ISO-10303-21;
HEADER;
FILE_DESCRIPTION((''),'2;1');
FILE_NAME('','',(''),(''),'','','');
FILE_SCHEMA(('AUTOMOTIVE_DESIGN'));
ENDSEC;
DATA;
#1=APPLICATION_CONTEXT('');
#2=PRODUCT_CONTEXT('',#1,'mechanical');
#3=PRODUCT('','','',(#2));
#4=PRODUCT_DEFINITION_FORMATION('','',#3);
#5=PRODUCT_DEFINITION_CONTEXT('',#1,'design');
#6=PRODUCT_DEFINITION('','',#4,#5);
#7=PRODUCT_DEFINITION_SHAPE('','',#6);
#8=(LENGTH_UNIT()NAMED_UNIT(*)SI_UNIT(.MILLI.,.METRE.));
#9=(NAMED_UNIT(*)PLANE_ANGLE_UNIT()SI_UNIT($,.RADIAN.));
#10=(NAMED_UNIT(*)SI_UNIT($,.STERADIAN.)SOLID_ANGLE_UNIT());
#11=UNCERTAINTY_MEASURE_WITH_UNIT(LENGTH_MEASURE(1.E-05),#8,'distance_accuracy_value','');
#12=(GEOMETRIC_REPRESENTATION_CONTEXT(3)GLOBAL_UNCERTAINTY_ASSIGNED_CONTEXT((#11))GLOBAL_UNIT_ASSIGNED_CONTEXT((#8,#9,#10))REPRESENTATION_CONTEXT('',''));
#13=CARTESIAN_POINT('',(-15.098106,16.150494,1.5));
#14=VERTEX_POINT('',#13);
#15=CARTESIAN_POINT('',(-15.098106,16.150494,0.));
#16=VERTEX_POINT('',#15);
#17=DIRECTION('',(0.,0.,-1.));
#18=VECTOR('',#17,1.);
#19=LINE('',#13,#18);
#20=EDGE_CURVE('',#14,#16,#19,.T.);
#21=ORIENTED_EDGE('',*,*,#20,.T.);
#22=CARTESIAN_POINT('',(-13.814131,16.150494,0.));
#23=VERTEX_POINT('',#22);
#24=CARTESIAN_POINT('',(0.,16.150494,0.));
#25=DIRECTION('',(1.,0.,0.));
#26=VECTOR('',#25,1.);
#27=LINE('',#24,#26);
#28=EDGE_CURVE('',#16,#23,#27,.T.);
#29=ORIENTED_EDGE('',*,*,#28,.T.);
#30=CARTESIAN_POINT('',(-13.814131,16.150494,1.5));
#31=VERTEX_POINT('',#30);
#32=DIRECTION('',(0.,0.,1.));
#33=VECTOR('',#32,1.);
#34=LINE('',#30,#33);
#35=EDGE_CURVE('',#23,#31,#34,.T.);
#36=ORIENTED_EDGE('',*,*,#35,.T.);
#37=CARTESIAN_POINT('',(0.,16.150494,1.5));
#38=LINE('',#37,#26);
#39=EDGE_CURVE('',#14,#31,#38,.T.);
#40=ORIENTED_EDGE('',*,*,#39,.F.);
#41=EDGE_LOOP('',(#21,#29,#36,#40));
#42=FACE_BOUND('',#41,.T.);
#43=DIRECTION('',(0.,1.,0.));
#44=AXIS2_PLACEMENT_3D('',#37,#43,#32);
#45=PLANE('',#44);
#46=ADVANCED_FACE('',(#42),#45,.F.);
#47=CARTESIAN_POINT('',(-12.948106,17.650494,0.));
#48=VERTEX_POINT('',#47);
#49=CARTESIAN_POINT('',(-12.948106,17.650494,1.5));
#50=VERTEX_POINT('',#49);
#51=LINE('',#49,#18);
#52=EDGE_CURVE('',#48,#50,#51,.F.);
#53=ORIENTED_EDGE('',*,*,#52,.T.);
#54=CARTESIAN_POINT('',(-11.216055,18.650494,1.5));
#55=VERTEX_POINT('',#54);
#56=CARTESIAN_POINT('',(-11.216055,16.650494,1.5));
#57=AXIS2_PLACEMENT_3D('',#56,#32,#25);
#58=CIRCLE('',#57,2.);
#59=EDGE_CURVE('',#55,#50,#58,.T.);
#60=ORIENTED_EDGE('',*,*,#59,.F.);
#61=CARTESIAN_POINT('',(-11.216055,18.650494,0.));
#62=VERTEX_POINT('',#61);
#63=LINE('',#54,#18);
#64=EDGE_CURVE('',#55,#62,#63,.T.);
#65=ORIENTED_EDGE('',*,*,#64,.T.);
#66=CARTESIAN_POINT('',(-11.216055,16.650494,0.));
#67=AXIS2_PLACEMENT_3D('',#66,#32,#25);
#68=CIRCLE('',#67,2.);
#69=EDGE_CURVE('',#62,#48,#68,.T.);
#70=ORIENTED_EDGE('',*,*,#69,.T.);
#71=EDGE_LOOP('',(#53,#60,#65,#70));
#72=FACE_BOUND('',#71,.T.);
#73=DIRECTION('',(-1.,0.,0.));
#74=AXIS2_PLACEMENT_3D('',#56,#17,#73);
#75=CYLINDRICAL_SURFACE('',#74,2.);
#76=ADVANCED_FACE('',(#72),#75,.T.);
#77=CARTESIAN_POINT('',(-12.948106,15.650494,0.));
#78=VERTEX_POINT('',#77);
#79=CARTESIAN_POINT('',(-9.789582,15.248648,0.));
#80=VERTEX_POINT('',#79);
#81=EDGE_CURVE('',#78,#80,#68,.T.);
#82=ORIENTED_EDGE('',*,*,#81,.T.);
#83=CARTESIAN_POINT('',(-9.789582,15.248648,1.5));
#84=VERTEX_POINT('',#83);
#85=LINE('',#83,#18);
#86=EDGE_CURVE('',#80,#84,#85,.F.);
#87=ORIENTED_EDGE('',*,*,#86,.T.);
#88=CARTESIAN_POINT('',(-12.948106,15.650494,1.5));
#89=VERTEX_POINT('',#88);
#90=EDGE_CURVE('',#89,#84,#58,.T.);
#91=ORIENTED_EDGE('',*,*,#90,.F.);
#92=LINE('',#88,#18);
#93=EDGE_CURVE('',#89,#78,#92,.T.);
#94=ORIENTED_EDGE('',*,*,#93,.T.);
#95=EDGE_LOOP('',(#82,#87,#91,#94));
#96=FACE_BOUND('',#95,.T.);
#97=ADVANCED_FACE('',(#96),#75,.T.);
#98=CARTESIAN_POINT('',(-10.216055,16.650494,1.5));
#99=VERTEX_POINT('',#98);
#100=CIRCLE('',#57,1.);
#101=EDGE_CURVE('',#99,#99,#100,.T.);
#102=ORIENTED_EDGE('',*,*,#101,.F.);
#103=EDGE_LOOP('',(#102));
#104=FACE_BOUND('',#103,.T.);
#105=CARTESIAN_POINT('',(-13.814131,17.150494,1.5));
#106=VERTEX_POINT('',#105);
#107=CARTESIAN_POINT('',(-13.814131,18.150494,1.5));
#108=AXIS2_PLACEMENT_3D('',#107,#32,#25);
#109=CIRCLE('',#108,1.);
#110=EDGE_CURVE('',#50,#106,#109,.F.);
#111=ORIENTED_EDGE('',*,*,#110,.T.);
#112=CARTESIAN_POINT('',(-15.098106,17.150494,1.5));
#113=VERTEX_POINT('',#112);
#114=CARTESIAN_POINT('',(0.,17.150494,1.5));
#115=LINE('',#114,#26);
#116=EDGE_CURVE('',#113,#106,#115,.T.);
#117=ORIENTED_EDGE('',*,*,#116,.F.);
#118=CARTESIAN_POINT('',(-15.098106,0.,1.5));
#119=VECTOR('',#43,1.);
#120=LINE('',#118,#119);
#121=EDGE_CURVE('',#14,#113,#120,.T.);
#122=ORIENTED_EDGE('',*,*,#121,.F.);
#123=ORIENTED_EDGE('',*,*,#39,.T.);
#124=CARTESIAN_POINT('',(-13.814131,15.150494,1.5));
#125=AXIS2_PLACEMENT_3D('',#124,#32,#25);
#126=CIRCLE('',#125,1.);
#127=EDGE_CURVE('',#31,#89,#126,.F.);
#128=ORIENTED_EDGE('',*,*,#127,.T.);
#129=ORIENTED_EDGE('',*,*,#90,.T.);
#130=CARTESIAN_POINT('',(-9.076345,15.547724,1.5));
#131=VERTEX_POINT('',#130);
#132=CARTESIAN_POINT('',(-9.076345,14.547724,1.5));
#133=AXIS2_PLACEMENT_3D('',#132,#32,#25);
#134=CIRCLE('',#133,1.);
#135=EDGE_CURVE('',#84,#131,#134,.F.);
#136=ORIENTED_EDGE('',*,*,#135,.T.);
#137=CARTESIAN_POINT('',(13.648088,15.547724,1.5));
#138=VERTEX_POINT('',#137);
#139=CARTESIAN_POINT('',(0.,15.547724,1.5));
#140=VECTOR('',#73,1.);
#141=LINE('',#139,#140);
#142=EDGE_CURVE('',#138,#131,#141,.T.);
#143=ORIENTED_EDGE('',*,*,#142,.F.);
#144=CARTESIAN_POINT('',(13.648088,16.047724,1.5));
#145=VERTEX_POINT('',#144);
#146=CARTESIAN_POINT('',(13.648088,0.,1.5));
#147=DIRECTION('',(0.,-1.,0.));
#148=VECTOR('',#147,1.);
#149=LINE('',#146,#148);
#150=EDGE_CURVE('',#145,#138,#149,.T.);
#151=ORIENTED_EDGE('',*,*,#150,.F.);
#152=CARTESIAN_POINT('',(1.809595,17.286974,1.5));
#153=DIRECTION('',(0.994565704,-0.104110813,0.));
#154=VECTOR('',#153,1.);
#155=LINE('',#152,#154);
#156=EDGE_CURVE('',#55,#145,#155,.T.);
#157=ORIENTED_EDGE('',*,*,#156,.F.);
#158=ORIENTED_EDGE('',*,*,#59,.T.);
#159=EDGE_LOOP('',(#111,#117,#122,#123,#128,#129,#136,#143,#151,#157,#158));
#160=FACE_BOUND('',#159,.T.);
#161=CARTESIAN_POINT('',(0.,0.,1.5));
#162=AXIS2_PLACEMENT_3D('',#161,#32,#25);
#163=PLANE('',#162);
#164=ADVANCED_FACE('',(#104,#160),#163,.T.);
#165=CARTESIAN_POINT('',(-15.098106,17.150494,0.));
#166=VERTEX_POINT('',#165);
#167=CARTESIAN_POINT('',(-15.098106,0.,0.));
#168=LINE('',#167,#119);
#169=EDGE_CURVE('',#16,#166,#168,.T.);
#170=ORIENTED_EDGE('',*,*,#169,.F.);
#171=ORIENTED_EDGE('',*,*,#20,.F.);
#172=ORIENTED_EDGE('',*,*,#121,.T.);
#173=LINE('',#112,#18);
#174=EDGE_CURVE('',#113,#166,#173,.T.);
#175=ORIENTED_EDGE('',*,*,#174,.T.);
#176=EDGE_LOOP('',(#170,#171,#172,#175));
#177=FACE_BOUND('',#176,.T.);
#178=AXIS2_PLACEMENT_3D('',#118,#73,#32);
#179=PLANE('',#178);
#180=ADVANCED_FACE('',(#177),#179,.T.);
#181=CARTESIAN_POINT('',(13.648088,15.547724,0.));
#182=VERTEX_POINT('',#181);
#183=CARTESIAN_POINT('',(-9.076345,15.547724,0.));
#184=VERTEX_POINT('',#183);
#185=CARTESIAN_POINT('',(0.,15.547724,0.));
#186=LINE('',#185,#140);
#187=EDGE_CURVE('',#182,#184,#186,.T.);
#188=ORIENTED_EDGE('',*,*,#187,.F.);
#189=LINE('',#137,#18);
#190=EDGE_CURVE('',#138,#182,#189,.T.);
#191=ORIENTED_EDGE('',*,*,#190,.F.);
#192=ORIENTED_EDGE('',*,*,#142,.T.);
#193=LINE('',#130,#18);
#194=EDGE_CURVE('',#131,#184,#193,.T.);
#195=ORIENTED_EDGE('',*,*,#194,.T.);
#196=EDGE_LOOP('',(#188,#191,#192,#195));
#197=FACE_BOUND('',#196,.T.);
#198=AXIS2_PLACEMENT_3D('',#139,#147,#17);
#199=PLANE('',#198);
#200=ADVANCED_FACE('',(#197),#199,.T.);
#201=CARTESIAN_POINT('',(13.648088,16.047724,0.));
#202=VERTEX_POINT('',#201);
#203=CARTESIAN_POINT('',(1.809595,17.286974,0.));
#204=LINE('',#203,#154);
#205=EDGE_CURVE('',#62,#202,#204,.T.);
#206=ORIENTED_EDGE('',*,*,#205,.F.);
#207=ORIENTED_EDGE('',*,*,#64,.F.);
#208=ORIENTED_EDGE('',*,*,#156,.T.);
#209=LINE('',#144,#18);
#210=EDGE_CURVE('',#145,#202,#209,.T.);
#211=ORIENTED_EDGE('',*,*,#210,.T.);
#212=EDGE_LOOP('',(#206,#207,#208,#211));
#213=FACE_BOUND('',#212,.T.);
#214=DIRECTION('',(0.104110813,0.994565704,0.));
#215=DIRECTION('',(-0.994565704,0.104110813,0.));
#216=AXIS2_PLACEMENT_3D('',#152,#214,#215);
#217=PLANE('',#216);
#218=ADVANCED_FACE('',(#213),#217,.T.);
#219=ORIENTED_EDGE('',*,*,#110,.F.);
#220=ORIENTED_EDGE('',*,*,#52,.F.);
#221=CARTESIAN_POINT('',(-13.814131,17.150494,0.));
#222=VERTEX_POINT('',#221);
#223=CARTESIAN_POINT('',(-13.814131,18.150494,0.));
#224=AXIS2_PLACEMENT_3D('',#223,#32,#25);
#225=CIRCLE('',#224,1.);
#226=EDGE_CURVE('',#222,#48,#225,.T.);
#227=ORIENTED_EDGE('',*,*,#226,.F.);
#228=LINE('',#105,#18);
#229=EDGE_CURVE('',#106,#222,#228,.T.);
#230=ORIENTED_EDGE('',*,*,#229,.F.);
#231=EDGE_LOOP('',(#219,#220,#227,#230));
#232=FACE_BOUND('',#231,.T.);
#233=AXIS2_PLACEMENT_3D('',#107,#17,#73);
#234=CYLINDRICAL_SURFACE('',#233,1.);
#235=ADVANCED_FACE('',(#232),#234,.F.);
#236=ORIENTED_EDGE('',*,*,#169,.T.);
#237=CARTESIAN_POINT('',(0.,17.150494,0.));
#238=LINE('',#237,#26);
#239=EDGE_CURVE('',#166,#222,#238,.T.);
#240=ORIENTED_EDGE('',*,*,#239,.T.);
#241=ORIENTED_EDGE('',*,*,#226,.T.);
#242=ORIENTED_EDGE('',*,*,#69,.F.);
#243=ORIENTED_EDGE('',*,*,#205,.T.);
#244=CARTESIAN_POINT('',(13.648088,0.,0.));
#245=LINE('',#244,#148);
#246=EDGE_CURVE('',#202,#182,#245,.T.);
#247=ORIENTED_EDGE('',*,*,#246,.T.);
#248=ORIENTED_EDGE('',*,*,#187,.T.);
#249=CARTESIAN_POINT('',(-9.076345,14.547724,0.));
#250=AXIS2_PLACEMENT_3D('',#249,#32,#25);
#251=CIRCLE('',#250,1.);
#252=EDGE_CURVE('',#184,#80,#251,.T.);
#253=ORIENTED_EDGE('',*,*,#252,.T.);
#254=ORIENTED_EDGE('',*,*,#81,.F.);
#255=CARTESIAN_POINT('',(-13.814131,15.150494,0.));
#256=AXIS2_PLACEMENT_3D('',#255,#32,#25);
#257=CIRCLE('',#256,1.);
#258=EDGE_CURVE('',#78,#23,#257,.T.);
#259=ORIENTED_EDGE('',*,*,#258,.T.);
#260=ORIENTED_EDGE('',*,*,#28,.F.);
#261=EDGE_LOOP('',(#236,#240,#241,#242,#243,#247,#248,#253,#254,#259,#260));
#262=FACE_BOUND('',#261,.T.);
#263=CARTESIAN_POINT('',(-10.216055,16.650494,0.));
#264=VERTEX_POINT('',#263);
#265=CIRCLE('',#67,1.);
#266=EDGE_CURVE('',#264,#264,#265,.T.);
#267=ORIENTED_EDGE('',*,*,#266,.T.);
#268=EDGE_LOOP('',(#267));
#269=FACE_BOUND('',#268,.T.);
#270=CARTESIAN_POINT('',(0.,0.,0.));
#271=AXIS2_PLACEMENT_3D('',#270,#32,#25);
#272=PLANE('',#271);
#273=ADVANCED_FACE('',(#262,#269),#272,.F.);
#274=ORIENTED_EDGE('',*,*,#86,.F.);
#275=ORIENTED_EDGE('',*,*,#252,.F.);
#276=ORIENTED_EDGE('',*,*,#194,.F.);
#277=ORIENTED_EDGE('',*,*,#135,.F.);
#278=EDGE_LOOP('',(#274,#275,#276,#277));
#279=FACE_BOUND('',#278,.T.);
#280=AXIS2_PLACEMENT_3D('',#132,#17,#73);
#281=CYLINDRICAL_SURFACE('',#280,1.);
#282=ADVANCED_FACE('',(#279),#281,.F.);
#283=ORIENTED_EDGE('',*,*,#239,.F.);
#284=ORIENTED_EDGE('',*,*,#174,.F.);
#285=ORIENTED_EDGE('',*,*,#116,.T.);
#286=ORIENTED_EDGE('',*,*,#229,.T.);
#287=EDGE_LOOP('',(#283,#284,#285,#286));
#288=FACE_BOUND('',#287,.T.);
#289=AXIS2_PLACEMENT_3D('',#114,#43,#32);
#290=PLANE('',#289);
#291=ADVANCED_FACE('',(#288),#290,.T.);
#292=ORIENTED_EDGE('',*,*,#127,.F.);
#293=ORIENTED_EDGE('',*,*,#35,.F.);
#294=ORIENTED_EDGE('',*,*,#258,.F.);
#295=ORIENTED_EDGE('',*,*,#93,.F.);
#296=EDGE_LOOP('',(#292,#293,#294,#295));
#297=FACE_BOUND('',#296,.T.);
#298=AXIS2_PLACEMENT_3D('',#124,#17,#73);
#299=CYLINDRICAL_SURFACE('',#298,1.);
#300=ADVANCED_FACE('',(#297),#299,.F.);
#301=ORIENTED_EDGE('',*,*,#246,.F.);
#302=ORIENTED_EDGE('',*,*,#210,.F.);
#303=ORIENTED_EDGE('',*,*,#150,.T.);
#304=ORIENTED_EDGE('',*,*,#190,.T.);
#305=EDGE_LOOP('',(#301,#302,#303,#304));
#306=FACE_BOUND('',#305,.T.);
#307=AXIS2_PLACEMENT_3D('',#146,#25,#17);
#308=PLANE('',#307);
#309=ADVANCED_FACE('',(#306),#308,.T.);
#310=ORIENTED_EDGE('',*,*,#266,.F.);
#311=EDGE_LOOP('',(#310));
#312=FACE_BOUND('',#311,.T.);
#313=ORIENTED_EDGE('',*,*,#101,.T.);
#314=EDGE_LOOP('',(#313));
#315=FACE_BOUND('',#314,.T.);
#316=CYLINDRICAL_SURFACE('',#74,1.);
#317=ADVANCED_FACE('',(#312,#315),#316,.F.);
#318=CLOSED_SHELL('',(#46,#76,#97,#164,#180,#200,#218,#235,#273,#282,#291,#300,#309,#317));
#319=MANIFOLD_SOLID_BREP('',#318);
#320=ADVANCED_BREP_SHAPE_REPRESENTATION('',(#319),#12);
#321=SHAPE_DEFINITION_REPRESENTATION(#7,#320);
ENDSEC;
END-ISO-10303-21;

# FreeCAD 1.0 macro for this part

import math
import FreeCAD as App
import Part
import Sketcher
Q = App.Units.Quantity


def edges_at(feature, points):
    """Names of the edges that pass closest to the given points."""
    edges = feature.Shape.Edges
    near = lambda p: min(range(len(edges)), key=lambda i: edges[i].distToShape(Part.Vertex(*p))[0])
    return sorted({f"Edge{near(p) + 1}" for p in points})

doc = App.newDocument("Part")
params = doc.addObject("Spreadsheet::Sheet", "Params")
for row, (alias, value) in enumerate([
    ("sketch1_diameter", "2 mm"),
    ("sketch1_radius", "2 mm"),
    ("sketch1_height", "1 mm"),
    ("sketch1_length", "25 mm"),
    ("sketch1_height2", "0.5 mm"),
    ("pad1_length", "1.5 mm"),
    ("fillet_radius", "1 mm"),
    ("fillet2_radius", "1 mm"),
    ("fillet3_radius", "1 mm"),
], start=1):
    params.set(f"A{row}", alias)
    params.set(f"B{row}", "=" + value)
    params.setAlias(f"B{row}", alias)

body = doc.addObject("PartDesign::Body", "Body")

# Sketch on XY plane
sketch1 = body.newObject("Sketcher::SketchObject", "Sketch")
sketch1.AttachmentSupport = (doc.getObject("XY_Plane"), [""])
sketch1.MapMode = "FlatFace"
sketch1.addGeometry(Part.LineSegment(App.Vector(13.6, 15.5, 0), App.Vector(13.6, 16, 0)), False)
sketch1.addGeometry(Part.LineSegment(App.Vector(13.6, 16, 0), App.Vector(-11.2, 18.7, 0)), False)
sketch1.addGeometry(Part.ArcOfCircle(Part.Circle(App.Vector(-11.2, 16.7, 0), App.Vector(0, 0, 1), 2), math.radians(90), math.radians(166)), False)
sketch1.addGeometry(Part.LineSegment(App.Vector(-13.2, 17.2, 0), App.Vector(-15.1, 17.2, 0)), False)
sketch1.addGeometry(Part.LineSegment(App.Vector(-15.1, 17.2, 0), App.Vector(-15.1, 16.2, 0)), False)
sketch1.addGeometry(Part.LineSegment(App.Vector(-15.1, 16.2, 0), App.Vector(-13.2, 16.2, 0)), False)
sketch1.addGeometry(Part.ArcOfCircle(Part.Circle(App.Vector(-11.2, 16.7, 0), App.Vector(0, 0, 1), 2), math.radians(-166), math.radians(-33)), False)
sketch1.addGeometry(Part.LineSegment(App.Vector(-9.5, 15.5, 0), App.Vector(13.6, 15.5, 0)), False)
sketch1.addGeometry(Part.Circle(App.Vector(-11.2, 16.7, 0), App.Vector(0, 0, 1), 1), False)
sketch1.addConstraint(Sketcher.Constraint("Coincident", 0, 2, 1, 1))
sketch1.addConstraint(Sketcher.Constraint("Coincident", 1, 2, 2, 1))
sketch1.addConstraint(Sketcher.Constraint("Coincident", 2, 2, 3, 1))
sketch1.addConstraint(Sketcher.Constraint("Coincident", 3, 2, 4, 1))
sketch1.addConstraint(Sketcher.Constraint("Coincident", 4, 2, 5, 1))
sketch1.addConstraint(Sketcher.Constraint("Coincident", 5, 2, 6, 1))
sketch1.addConstraint(Sketcher.Constraint("Coincident", 6, 2, 7, 1))
sketch1.addConstraint(Sketcher.Constraint("Coincident", 7, 2, 0, 1))
sketch1.addConstraint(Sketcher.Constraint("Vertical", 0))
sketch1.addConstraint(Sketcher.Constraint("Horizontal", 3))
sketch1.addConstraint(Sketcher.Constraint("Vertical", 4))
sketch1.addConstraint(Sketcher.Constraint("Horizontal", 5))
sketch1.addConstraint(Sketcher.Constraint("Horizontal", 7))
sketch1.addConstraint(Sketcher.Constraint("Coincident", 6, 3, 2, 3))
sketch1.addConstraint(Sketcher.Constraint("Coincident", 8, 3, 2, 3))
sketch1.addConstraint(Sketcher.Constraint("Equal", 2, 6))
sketch1.addConstraint(Sketcher.Constraint("Vertical", 8, 3, 1, 2))
sketch1.addConstraint(Sketcher.Constraint("Vertical", 2, 2, 5, 2))
sketch1.addConstraint(Sketcher.Constraint("Diameter", 8, Q("2 mm")))
sketch1.addConstraint(Sketcher.Constraint("Radius", 2, Q("2 mm")))
sketch1.addConstraint(Sketcher.Constraint("DistanceY", 4, 2, 4, 1, Q("1 mm")))
sketch1.addConstraint(Sketcher.Constraint("Distance", 1, Q("25 mm")))
sketch1.addConstraint(Sketcher.Constraint("DistanceY", 0, 1, 0, 2, Q("0.5 mm")))
sketch1.addConstraint(Sketcher.Constraint("DistanceX", 3, 2, 3, 1, Q("1.945559 mm")))
sketch1.addConstraint(Sketcher.Constraint("DistanceX", 7, 1, 7, 2, Q("23.195641 mm")))
sketch1.addConstraint(Sketcher.Constraint("DistanceX", 2, 3, -1, 1, Q("11.216055 mm")))
sketch1.addConstraint(Sketcher.Constraint("DistanceY", -1, 1, 2, 3, Q("16.650494 mm")))
sketch1.setExpression("Constraints[18]", "Params.sketch1_diameter")
sketch1.setExpression("Constraints[19]", "Params.sketch1_radius")
sketch1.setExpression("Constraints[20]", "Params.sketch1_height")
sketch1.setExpression("Constraints[21]", "Params.sketch1_length")
sketch1.setExpression("Constraints[22]", "Params.sketch1_height2")
pad1 = body.newObject("PartDesign::Pad", "Pad")
pad1.Profile = sketch1
pad1.setExpression("Length", "Params.pad1_length")
doc.recompute()

fillet = body.newObject("PartDesign::Fillet", "Fillet")
fillet.Base = (pad1, edges_at(pad1, [(-13.153, 16.15, 0.75)]))
fillet.setExpression("Radius", "Params.fillet_radius")
doc.recompute()

fillet2 = body.newObject("PartDesign::Fillet", "Fillet001")
fillet2.Base = (fillet, edges_at(fillet, [(-13.153, 17.15, 0.75)]))
fillet2.setExpression("Radius", "Params.fillet2_radius")
doc.recompute()

fillet3 = body.newObject("PartDesign::Fillet", "Fillet002")
fillet3.Base = (fillet2, edges_at(fillet2, [(-9.548, 15.548, 0.75)]))
fillet3.setExpression("Radius", "Params.fillet3_radius")

doc.recompute()
